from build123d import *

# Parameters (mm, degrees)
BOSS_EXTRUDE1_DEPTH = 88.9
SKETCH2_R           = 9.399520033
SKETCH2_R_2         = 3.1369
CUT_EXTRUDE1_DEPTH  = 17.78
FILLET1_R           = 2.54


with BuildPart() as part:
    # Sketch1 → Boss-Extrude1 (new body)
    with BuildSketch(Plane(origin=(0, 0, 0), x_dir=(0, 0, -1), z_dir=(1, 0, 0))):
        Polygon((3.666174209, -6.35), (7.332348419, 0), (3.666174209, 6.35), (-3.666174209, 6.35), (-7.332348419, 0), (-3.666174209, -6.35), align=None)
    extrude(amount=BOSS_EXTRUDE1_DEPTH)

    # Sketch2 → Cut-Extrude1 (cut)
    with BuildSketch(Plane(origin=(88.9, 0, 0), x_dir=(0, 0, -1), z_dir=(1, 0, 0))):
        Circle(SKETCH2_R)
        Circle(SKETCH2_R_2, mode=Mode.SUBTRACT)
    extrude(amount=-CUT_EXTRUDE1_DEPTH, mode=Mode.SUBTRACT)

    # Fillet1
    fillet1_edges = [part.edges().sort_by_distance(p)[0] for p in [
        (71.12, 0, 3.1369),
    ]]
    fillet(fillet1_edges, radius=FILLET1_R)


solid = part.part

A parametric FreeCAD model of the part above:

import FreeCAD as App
import Part
import Sketcher
Q = App.Units.Quantity


def edges_at(feature, points):
    """Names of the edges that pass closest to the given points."""
    edges = feature.Shape.Edges
    near = lambda p: min(range(len(edges)), key=lambda i: edges[i].distToShape(Part.Vertex(*p))[0])
    return sorted({f"Edge{near(p) + 1}" for p in points})

doc = App.newDocument("Part")
body = doc.addObject("PartDesign::Body", "Body")

# Sketch on YZ plane
sketch1 = doc.addObject("Sketcher::SketchObject", "Sketch")
body.addObject(sketch1)
sketch1.AttachmentSupport = (doc.YZ_Plane, [""])
sketch1.MapMode = "FlatFace"
sketch1.addGeometry([
    Part.LineSegment(App.Vector(-6, -4, 0), App.Vector(0, -7, 0)),  # 0
    Part.LineSegment(App.Vector(0, -7, 0), App.Vector(6, -4, 0)),  # 1
    Part.LineSegment(App.Vector(6, -4, 0), App.Vector(6, 4, 0)),  # 2
    Part.LineSegment(App.Vector(6, 4, 0), App.Vector(0, 7, 0)),  # 3
    Part.LineSegment(App.Vector(0, 7, 0), App.Vector(-6, 4, 0)),  # 4
    Part.LineSegment(App.Vector(-6, 4, 0), App.Vector(-6, -4, 0)),  # 5
], False)
sketch1.addConstraint([
    Sketcher.Constraint("Coincident", 0, 2, 1, 1),
    Sketcher.Constraint("Coincident", 1, 2, 2, 1),
    Sketcher.Constraint("Coincident", 2, 2, 3, 1),
    Sketcher.Constraint("Coincident", 3, 2, 4, 1),
    Sketcher.Constraint("Coincident", 4, 2, 5, 1),
    Sketcher.Constraint("Coincident", 5, 2, 0, 1),
    Sketcher.Constraint("Vertical", 2),
    Sketcher.Constraint("Vertical", 5),
    Sketcher.Constraint("Symmetric", 0, 2, 3, 2, -1, 1),
    Sketcher.Constraint("Symmetric", 1, 2, 4, 2, -1, 1),
    Sketcher.Constraint("PointOnObject", 0, 2, -2),
    Sketcher.Constraint("Parallel", 0, 3),
    Sketcher.Constraint("Horizontal", 2, 2, 4, 2),
    Sketcher.Constraint("Angle", 0, Q("-30 deg")),
    Sketcher.Constraint("DistanceX", 4, 2, 2, 2, Q("0.5 in")),
    Sketcher.Constraint("DistanceY", 2, 1, 2, 2, Q("7.332348 mm")),
])
pad1 = doc.addObject("PartDesign::Pad", "Pad")
body.addObject(pad1)
pad1.Profile = sketch1
pad1.Length = Q("3.5 in")

# Sketch on YZ plane
sketch2 = doc.addObject("Sketcher::SketchObject", "Sketch001")
body.addObject(sketch2)
sketch2.AttachmentSupport = (doc.YZ_Plane, [""])
sketch2.MapMode = "FlatFace"
sketch2.AttachmentOffset = App.Placement(App.Vector(0, 0, 3.5 * 25.4), App.Rotation())
sketch2.addGeometry([
    Part.Circle(App.Vector(0, 0, 0), App.Vector(0, 0, 1), 9.4),
    Part.Circle(App.Vector(0, 0, 0), App.Vector(0, 0, 1), 3.1),
], False)
sketch2.addConstraint([
    Sketcher.Constraint("Coincident", 0, 3, -1, 1),
    Sketcher.Constraint("Coincident", 1, 3, -1, 1),
    Sketcher.Constraint("Diameter", 1, Q("0.247 in")),
    Sketcher.Constraint("Diameter", 0, Q("18.79904 mm")),
])
pocket1 = doc.addObject("PartDesign::Pocket", "Pocket")
body.addObject(pocket1)
pocket1.Profile = sketch2
pocket1.Length = Q("0.7 in")
doc.recompute()

fillet = doc.addObject("PartDesign::Fillet", "Fillet")
body.addObject(fillet)
fillet.Base = (pocket1, edges_at(pocket1, [(71.12, 0, 3.137)]))
fillet.Radius = Q("0.1 in")

doc.recompute()
